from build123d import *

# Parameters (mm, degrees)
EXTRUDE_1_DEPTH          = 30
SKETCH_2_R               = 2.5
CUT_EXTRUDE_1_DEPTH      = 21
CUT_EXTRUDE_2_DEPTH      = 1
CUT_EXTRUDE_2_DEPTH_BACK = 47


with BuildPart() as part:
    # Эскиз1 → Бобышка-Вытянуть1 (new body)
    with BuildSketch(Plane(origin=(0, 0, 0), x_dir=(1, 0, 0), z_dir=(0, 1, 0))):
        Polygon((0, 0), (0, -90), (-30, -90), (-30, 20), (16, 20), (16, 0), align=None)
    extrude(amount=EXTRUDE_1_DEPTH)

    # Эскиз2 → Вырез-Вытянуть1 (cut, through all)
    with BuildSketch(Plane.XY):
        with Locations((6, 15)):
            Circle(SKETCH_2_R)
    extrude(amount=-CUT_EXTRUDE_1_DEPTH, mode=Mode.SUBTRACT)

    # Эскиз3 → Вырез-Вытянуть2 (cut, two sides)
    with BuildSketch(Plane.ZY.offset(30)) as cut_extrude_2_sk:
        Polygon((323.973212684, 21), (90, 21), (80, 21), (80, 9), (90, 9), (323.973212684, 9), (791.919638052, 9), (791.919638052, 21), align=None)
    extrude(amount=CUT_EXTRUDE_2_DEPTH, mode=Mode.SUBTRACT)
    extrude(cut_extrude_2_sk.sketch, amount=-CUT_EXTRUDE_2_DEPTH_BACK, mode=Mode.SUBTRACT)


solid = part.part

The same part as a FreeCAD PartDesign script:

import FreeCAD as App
import Part
import Sketcher

V = App.Vector


def add_polygon(sketch, points):
    """Adds a closed chain of lines whose ends are joined by coincident constraints."""
    first, n = sketch.GeometryCount, len(points)
    for a, b in zip(points, points[1:] + points[:1]):
        sketch.addGeometry(Part.LineSegment(App.Vector(*a, 0), App.Vector(*b, 0)), False)
    for i in range(n):
        sketch.addConstraint(Sketcher.Constraint("Coincident", first + i, 2, first + (i + 1) % n, 1))

doc = App.newDocument("Part")
params = doc.addObject("Spreadsheet::Sheet", "Params")
for row, (alias, value) in enumerate([
    ("sketch1_width", "16 mm"),
    ("sketch1_width2", "46 mm"),
    ("sketch1_height", "90 mm"),
    ("sketch1_height2", "20 mm"),
    ("pad1_length", "30 mm"),
    ("sketch2_diameter", "5 mm"),
    ("sketch3_width", "12 mm"),
], start=1):
    params.set(f"A{row}", alias)
    params.set(f"B{row}", "=" + value)
    params.setAlias(f"B{row}", alias)

body = doc.addObject("PartDesign::Body", "Body")

# Sketch on XZ plane
sketch1 = doc.addObject("Sketcher::SketchObject", "Sketch")
body.addObject(sketch1)
sketch1.AttachmentSupport = (doc.XZ_Plane, [""])
sketch1.MapMode = "FlatFace"
add_polygon(sketch1, [(0, 90), (0, 0), (16, 0), (16, -20), (-30, -20), (-30, 90)])  # lines 0-5
sketch1.addConstraint([
    Sketcher.Constraint("Vertical", 0),
    Sketcher.Constraint("Horizontal", 1),
    Sketcher.Constraint("Vertical", 2),
    Sketcher.Constraint("Horizontal", 3),
    Sketcher.Constraint("Vertical", 4),
    Sketcher.Constraint("Horizontal", 5),
    Sketcher.Constraint("Coincident", 0, 2, -1, 1),
    Sketcher.Constraint("DistanceX", 1, 1, 1, 2, 16.0),
    Sketcher.Constraint("DistanceX", 3, 2, 3, 1, 46.0),
    Sketcher.Constraint("DistanceY", 0, 2, 0, 1, 90.0),
    Sketcher.Constraint("DistanceY", 2, 2, 2, 1, 20.0),
])
sketch1.setExpression("Constraints[13]", "Params.sketch1_width")
sketch1.setExpression("Constraints[14]", "Params.sketch1_width2")
sketch1.setExpression("Constraints[15]", "Params.sketch1_height")
sketch1.setExpression("Constraints[16]", "Params.sketch1_height2")
pad1 = doc.addObject("PartDesign::Pad", "Pad")
body.addObject(pad1)
pad1.Profile = sketch1
pad1.setExpression("Length", "Params.pad1_length")
pad1.Reversed = True

# Sketch on XY plane
sketch2 = doc.addObject("Sketcher::SketchObject", "Sketch001")
body.addObject(sketch2)
sketch2.AttachmentSupport = (doc.XY_Plane, [""])
sketch2.MapMode = "FlatFace"
sketch2.addGeometry(Part.Circle(V(6, 15, 0), V(0, 0, 1), 2.5), False)
sketch2.addConstraint([
    Sketcher.Constraint("Diameter", 0, 5.0),
    Sketcher.Constraint("DistanceX", -1, 1, 0, 3, 6.0),
    Sketcher.Constraint("DistanceY", -1, 1, 0, 3, 15.0),
])
sketch2.setExpression("Constraints[0]", "Params.sketch2_diameter")
pocket1 = doc.addObject("PartDesign::Pocket", "Pocket")
body.addObject(pocket1)
pocket1.Profile = sketch2
pocket1.Type = "ThroughAll"

# Sketch on YZ plane
sketch3 = doc.addObject("Sketcher::SketchObject", "Sketch002")
body.addObject(sketch3)
sketch3.AttachmentSupport = (doc.YZ_Plane, [""])
sketch3.MapMode = "FlatFace"
sketch3.AttachmentOffset = App.Placement(V(0, 0, -30), App.Rotation())
add_polygon(sketch3, [(21, 80), (9, 80), (9, 791.919638), (21, 791.919638)])  # lines 0-3
sketch3.addConstraint([
    Sketcher.Constraint("Horizontal", 0),
    Sketcher.Constraint("Vertical", 1),
    Sketcher.Constraint("Horizontal", 2),
    Sketcher.Constraint("Vertical", 3),
    Sketcher.Constraint("DistanceX", 0, 2, 0, 1, 12.0),
    Sketcher.Constraint("DistanceX", -1, 1, 0, 2, 9.0),
    Sketcher.Constraint("DistanceY", -1, 1, 0, 2, 80.0),
    Sketcher.Constraint("DistanceY", 1, 1, 1, 2, 711.919638),
])
sketch3.setExpression("Constraints[8]", "Params.sketch3_width")
pocket2 = doc.addObject("PartDesign::Pocket", "Pocket001")
body.addObject(pocket2)
pocket2.Profile = sketch3
pocket2.Type = "ThroughAll"
pocket2.Midplane = True

doc.recompute()
